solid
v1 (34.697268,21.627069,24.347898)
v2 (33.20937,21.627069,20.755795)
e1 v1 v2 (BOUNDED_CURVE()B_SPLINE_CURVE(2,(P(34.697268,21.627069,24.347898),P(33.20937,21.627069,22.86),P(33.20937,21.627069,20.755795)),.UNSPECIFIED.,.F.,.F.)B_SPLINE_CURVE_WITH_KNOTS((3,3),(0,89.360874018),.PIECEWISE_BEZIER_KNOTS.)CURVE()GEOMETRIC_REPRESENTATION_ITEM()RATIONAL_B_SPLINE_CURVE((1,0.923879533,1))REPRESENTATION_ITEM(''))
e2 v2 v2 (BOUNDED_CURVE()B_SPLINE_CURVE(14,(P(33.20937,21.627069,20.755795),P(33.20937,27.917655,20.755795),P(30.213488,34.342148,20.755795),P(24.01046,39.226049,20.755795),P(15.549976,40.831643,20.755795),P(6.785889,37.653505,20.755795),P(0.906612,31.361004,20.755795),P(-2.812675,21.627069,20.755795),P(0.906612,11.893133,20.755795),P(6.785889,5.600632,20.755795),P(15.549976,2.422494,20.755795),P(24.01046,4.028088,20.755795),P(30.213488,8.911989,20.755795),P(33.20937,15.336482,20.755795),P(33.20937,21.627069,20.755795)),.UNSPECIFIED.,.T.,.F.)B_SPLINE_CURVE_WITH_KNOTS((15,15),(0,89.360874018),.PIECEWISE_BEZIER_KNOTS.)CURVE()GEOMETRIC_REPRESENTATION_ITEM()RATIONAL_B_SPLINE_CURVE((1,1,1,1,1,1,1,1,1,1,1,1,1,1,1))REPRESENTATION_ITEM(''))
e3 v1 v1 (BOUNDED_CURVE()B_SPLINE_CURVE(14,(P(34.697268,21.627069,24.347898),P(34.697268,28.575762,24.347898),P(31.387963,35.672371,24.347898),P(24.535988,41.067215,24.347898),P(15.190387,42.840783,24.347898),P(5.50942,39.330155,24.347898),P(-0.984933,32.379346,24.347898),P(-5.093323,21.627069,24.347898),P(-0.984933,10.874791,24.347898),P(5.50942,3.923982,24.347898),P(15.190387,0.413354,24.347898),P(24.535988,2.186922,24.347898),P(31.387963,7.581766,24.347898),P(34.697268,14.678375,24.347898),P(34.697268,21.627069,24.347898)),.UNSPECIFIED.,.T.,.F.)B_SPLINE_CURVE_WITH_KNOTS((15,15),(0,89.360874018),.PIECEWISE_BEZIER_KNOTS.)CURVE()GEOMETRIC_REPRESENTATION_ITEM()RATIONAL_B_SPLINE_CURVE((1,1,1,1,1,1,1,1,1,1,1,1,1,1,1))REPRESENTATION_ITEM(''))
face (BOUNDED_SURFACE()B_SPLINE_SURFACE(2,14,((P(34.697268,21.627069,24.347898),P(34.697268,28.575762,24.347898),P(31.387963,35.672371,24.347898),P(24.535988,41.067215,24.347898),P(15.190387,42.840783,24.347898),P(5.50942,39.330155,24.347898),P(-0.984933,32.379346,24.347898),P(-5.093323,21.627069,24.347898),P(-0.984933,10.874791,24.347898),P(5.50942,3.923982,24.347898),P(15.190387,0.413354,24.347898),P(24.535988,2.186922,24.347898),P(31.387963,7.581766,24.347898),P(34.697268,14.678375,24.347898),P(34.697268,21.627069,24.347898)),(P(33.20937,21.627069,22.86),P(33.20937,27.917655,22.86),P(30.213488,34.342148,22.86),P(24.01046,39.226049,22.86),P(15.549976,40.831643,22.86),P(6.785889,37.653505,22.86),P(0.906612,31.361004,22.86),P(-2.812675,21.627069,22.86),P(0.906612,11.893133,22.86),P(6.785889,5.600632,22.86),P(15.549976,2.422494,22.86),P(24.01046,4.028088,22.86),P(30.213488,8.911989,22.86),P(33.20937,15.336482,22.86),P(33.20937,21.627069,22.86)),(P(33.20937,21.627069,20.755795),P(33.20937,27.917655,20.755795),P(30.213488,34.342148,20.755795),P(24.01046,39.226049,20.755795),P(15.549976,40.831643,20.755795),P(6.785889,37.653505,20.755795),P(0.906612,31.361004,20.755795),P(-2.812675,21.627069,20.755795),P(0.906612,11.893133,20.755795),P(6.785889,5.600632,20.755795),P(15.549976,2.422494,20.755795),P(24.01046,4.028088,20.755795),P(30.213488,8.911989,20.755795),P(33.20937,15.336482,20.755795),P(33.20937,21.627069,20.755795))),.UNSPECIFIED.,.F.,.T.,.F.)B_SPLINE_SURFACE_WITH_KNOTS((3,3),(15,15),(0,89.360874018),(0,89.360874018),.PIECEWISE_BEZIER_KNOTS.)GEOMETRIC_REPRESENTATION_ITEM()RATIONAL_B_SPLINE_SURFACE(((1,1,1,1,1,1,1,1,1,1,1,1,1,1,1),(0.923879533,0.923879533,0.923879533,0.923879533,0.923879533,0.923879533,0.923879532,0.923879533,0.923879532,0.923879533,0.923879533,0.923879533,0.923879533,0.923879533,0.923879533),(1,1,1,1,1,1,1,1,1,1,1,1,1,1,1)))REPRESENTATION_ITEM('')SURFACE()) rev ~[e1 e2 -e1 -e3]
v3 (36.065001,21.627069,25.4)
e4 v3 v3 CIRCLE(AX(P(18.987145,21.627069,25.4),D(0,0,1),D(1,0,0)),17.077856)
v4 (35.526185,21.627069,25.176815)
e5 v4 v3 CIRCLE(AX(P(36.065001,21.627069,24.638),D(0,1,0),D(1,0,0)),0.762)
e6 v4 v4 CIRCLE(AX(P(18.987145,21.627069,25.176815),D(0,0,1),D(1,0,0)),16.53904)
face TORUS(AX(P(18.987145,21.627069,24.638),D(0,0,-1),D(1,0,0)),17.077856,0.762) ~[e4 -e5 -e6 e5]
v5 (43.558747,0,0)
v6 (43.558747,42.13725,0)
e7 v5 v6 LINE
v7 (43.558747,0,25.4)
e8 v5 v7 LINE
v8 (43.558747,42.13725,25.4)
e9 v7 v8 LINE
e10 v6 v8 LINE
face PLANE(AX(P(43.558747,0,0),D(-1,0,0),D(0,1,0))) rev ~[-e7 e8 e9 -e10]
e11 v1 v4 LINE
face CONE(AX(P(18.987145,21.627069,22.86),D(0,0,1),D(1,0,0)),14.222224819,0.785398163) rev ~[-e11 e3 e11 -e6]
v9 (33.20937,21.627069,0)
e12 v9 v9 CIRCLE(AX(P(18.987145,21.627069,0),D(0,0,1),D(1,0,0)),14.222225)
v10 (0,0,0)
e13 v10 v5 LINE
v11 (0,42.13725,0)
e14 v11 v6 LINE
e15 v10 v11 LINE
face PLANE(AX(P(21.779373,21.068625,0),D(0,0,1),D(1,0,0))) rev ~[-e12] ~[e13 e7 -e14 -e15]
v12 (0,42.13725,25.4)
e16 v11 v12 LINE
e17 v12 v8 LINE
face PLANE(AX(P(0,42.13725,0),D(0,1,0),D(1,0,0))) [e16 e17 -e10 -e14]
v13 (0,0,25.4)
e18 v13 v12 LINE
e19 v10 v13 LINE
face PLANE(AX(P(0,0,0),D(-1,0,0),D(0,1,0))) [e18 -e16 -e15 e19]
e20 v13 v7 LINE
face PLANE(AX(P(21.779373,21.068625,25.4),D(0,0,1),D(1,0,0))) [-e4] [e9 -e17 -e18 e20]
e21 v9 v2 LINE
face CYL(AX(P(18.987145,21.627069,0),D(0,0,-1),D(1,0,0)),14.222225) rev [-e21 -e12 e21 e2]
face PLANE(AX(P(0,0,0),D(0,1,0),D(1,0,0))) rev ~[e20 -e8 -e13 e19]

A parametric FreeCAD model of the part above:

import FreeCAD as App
import Part
import Sketcher
Q = App.Units.Quantity


def edges_at(feature, points):
    """Names of the edges that pass closest to the given points."""
    edges = feature.Shape.Edges
    near = lambda p: min(range(len(edges)), key=lambda i: edges[i].distToShape(Part.Vertex(*p))[0])
    return sorted({f"Edge{near(p) + 1}" for p in points})


def add_polygon(sketch, points):
    """Adds a closed chain of lines whose ends are joined by coincident constraints."""
    first, n = sketch.GeometryCount, len(points)
    for a, b in zip(points, points[1:] + points[:1]):
        sketch.addGeometry(Part.LineSegment(App.Vector(*a, 0), App.Vector(*b, 0)), False)
    for i in range(n):
        sketch.addConstraint(Sketcher.Constraint("Coincident", first + i, 2, first + (i + 1) % n, 1))

doc = App.newDocument("Part")
body = doc.addObject("PartDesign::Body", "Body")

sketch1 = body.newObject("Sketcher::SketchObject", "Sketch")
sketch1.AttachmentSupport = (doc.getObject("XY_Plane"), [""])
sketch1.MapMode = "FlatFace"
add_polygon(sketch1, [(0, 42), (0, 0), (44, 0), (44, 42)])
sketch1.addGeometry(Part.Circle(App.Vector(19, 22, 0), App.Vector(0, 0, 1), 14), False)
sketch1.addConstraint(Sketcher.Constraint("Vertical", 0))
sketch1.addConstraint(Sketcher.Constraint("Horizontal", 1))
sketch1.addConstraint(Sketcher.Constraint("Vertical", 2))
sketch1.addConstraint(Sketcher.Constraint("Horizontal", 3))
sketch1.addConstraint(Sketcher.Constraint("Coincident", 0, 2, -1, 1))
sketch1.addConstraint(Sketcher.Constraint("Diameter", 4, 28.44445))
sketch1.addConstraint(Sketcher.Constraint("DistanceY", 0, 2, 0, 1, 42.13725))
sketch1.addConstraint(Sketcher.Constraint("DistanceX", 4, 3, 1, 2, 24.571601))
sketch1.addConstraint(Sketcher.Constraint("DistanceX", 1, 1, 1, 2, 43.558747))
sketch1.addConstraint(Sketcher.Constraint("DistanceY", -1, 1, 4, 3, 21.627069))
pad1 = body.newObject("PartDesign::Pad", "Pad")
pad1.Profile = sketch1
pad1.Length = Q("1 in")
doc.recompute()

chamfer = body.newObject("PartDesign::Chamfer", "Chamfer")
chamfer.Base = (pad1, edges_at(pad1, [(4.765, 21.627, 25.4)]))
chamfer.Size = Q("0.1 in")
doc.recompute()

fillet = body.newObject("PartDesign::Fillet", "Fillet")
fillet.Base = (chamfer, edges_at(chamfer, [(2.225, 21.627, 25.4)]))
fillet.Radius = Q("0.03 in")
doc.recompute()

fillet2 = body.newObject("PartDesign::Fillet", "Fillet001")
fillet2.Base = (fillet, edges_at(fillet, [(4.765, 21.627, 22.86)]))
fillet2.Radius = Q("0.2 in")

doc.recompute()
